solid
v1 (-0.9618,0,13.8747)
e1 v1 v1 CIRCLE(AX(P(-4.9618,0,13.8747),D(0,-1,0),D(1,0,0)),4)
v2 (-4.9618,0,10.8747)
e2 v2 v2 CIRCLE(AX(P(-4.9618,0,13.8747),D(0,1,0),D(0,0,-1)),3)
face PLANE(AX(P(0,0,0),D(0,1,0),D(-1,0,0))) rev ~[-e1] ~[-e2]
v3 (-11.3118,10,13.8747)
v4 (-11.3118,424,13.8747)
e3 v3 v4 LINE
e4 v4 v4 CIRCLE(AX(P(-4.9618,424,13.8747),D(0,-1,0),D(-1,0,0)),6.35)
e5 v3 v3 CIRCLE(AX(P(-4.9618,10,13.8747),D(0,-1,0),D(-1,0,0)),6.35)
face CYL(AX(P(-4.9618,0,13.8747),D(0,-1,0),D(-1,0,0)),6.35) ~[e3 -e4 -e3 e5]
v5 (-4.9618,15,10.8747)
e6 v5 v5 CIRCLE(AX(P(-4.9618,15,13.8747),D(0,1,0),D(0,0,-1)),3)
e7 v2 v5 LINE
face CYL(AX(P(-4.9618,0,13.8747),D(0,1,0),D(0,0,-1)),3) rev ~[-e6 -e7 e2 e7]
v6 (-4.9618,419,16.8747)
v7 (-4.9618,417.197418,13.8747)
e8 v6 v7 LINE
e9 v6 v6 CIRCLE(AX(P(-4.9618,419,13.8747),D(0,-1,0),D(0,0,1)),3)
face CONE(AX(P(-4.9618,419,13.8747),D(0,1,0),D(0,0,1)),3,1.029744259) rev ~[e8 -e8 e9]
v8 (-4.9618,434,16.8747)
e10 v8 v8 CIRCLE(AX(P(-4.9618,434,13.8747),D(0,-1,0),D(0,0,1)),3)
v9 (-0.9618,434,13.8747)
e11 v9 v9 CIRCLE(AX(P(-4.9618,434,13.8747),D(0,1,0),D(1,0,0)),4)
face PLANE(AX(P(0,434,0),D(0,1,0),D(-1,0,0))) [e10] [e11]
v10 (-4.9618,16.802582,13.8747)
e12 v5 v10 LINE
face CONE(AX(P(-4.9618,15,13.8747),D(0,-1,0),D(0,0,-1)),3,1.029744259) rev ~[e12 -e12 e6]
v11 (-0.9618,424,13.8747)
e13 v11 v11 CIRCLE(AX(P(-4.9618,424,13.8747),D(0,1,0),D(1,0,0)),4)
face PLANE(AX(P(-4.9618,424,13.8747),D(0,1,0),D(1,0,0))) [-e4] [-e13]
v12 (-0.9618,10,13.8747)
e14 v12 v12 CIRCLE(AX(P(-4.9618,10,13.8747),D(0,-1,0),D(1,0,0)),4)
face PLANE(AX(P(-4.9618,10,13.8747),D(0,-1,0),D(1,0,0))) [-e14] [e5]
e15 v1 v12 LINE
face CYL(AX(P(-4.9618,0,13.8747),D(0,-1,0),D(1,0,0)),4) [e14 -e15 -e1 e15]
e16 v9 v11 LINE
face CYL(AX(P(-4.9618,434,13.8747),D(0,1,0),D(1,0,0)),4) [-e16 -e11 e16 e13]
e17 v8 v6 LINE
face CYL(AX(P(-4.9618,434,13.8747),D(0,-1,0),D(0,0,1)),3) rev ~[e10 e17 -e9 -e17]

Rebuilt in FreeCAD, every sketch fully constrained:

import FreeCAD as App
import Part
import Sketcher
from FreeCAD import Vector

doc = App.newDocument("Part")
params = doc.addObject("Spreadsheet::Sheet", "Params")
for row, (alias, value) in enumerate([
    ("sketch1_diameter", "12.7 mm"),
    ("pad1_length", "434 mm"),
    ("sketch2_diameter", "6 mm"),
    ("hole_diameter", "6 mm"),
    ("hole_depth", "15 mm"),
    ("sketch3_diameter", "6 mm"),
    ("hole2_diameter", "6 mm"),
    ("hole2_depth", "15 mm"),
    ("sketch4_diameter", "13 mm"),
    ("sketch4_diameter2", "8 mm"),
    ("pocket1_length", "10 mm"),
    ("sketch5_diameter", "14 mm"),
    ("sketch5_diameter2", "8 mm"),
    ("pocket2_length", "10 mm"),
], start=1):
    params.set(f"A{row}", alias)
    params.set(f"B{row}", "=" + value)
    params.setAlias(f"B{row}", alias)

body = doc.addObject("PartDesign::Body", "Body")

sketch1 = doc.addObject("Sketcher::SketchObject", "Sketch")
body.addObject(sketch1)
sketch1.AttachmentSupport = (doc.XZ_Plane, [""])
sketch1.MapMode = "FlatFace"
sketch1.addGeometry(Part.Circle(Vector(-5, 14, 0), Vector(0, 0, 1), 6), False)
sketch1.addConstraint(Sketcher.Constraint("Diameter", 0, 12.7))
sketch1.addConstraint(Sketcher.Constraint("DistanceX", 0, 3, -1, 1, 4.9618))
sketch1.addConstraint(Sketcher.Constraint("DistanceY", -1, 1, 0, 3, 13.8747))
sketch1.setExpression("Constraints[0]", "Params.sketch1_diameter")
pad1 = doc.addObject("PartDesign::Pad", "Pad")
body.addObject(pad1)
pad1.Profile = sketch1
pad1.setExpression("Length", "Params.pad1_length")
pad1.Reversed = True

sketch2 = doc.addObject("Sketcher::SketchObject", "Sketch001")
body.addObject(sketch2)
sketch2.AttachmentSupport = (doc.XZ_Plane, [""])
sketch2.MapMode = "FlatFace"
sketch2.AttachmentOffset = App.Placement(Vector(0, 0, -434), App.Rotation())
sketch2.addGeometry(Part.Circle(Vector(-5, 13.9, 0), Vector(0, 0, 1), 3), False)
sketch2.addConstraint(Sketcher.Constraint("Diameter", 0, 6.0))
sketch2.addConstraint(Sketcher.Constraint("DistanceX", 0, 3, -1, 1, 4.9618))
sketch2.addConstraint(Sketcher.Constraint("DistanceY", -1, 1, 0, 3, 13.8747))
sketch2.setExpression("Constraints[0]", "Params.sketch2_diameter")
doc.recompute()
hole = doc.addObject("PartDesign::Hole", "Hole")
body.addObject(hole)
hole.Profile = sketch2
hole.ThreadType = "None"
hole.setExpression("Diameter", "Params.hole_diameter")
hole.DepthType = "Dimension"
hole.setExpression("Depth", "Params.hole_depth")
hole.DrillPoint = "Angled"
hole.DrillPointAngle = 118
hole.Reversed = True

sketch3 = doc.addObject("Sketcher::SketchObject", "Sketch002")
body.addObject(sketch3)
sketch3.AttachmentSupport = (doc.XZ_Plane, [""])
sketch3.MapMode = "FlatFace"
sketch3.addGeometry(Part.Circle(Vector(-5, 13.9, 0), Vector(0, 0, 1), 3), False)
sketch3.addConstraint(Sketcher.Constraint("Diameter", 0, 6.0))
sketch3.addConstraint(Sketcher.Constraint("DistanceX", 0, 3, -1, 1, 4.9618))
sketch3.addConstraint(Sketcher.Constraint("DistanceY", -1, 1, 0, 3, 13.8747))
sketch3.setExpression("Constraints[0]", "Params.sketch3_diameter")
doc.recompute()
hole2 = doc.addObject("PartDesign::Hole", "Hole001")
body.addObject(hole2)
hole2.Profile = sketch3
hole2.ThreadType = "None"
hole2.setExpression("Diameter", "Params.hole2_diameter")
hole2.DepthType = "Dimension"
hole2.setExpression("Depth", "Params.hole2_depth")
hole2.DrillPoint = "Angled"
hole2.DrillPointAngle = 118

sketch4 = doc.addObject("Sketcher::SketchObject", "Sketch003")
body.addObject(sketch4)
sketch4.AttachmentSupport = (doc.XZ_Plane, [""])
sketch4.MapMode = "FlatFace"
sketch4.addGeometry(Part.Circle(Vector(-5, 13.9, 0), Vector(0, 0, 1), 6.5), False)
sketch4.addGeometry(Part.Circle(Vector(-5, 13.9, 0), Vector(0, 0, 1), 4), False)
sketch4.addConstraint(Sketcher.Constraint("Coincident", 1, 3, 0, 3))
sketch4.addConstraint(Sketcher.Constraint("Diameter", 0, 13.0))
sketch4.addConstraint(Sketcher.Constraint("Diameter", 1, 8.0))
sketch4.addConstraint(Sketcher.Constraint("DistanceX", 0, 3, -1, 1, 4.9618))
sketch4.addConstraint(Sketcher.Constraint("DistanceY", -1, 1, 0, 3, 13.8747))
sketch4.setExpression("Constraints[1]", "Params.sketch4_diameter")
sketch4.setExpression("Constraints[2]", "Params.sketch4_diameter2")
pocket1 = doc.addObject("PartDesign::Pocket", "Pocket")
body.addObject(pocket1)
pocket1.Profile = sketch4
pocket1.setExpression("Length", "Params.pocket1_length")

sketch5 = doc.addObject("Sketcher::SketchObject", "Sketch004")
body.addObject(sketch5)
sketch5.AttachmentSupport = (doc.XZ_Plane, [""])
sketch5.MapMode = "FlatFace"
sketch5.AttachmentOffset = App.Placement(Vector(0, 0, -434), App.Rotation())
sketch5.addGeometry(Part.Circle(Vector(-5, 13.9, 0), Vector(0, 0, 1), 7), False)
sketch5.addGeometry(Part.Circle(Vector(-5, 13.9, 0), Vector(0, 0, 1), 4), False)
sketch5.addConstraint(Sketcher.Constraint("Coincident", 1, 3, 0, 3))
sketch5.addConstraint(Sketcher.Constraint("Diameter", 0, 14.0))
sketch5.addConstraint(Sketcher.Constraint("Diameter", 1, 8.0))
sketch5.addConstraint(Sketcher.Constraint("DistanceX", 0, 3, -1, 1, 4.9618))
sketch5.addConstraint(Sketcher.Constraint("DistanceY", -1, 1, 0, 3, 13.8747))
sketch5.setExpression("Constraints[1]", "Params.sketch5_diameter")
sketch5.setExpression("Constraints[2]", "Params.sketch5_diameter2")
pocket2 = doc.addObject("PartDesign::Pocket", "Pocket001")
body.addObject(pocket2)
pocket2.Profile = sketch5
pocket2.setExpression("Length", "Params.pocket2_length")
pocket2.Reversed = True

doc.recompute()
